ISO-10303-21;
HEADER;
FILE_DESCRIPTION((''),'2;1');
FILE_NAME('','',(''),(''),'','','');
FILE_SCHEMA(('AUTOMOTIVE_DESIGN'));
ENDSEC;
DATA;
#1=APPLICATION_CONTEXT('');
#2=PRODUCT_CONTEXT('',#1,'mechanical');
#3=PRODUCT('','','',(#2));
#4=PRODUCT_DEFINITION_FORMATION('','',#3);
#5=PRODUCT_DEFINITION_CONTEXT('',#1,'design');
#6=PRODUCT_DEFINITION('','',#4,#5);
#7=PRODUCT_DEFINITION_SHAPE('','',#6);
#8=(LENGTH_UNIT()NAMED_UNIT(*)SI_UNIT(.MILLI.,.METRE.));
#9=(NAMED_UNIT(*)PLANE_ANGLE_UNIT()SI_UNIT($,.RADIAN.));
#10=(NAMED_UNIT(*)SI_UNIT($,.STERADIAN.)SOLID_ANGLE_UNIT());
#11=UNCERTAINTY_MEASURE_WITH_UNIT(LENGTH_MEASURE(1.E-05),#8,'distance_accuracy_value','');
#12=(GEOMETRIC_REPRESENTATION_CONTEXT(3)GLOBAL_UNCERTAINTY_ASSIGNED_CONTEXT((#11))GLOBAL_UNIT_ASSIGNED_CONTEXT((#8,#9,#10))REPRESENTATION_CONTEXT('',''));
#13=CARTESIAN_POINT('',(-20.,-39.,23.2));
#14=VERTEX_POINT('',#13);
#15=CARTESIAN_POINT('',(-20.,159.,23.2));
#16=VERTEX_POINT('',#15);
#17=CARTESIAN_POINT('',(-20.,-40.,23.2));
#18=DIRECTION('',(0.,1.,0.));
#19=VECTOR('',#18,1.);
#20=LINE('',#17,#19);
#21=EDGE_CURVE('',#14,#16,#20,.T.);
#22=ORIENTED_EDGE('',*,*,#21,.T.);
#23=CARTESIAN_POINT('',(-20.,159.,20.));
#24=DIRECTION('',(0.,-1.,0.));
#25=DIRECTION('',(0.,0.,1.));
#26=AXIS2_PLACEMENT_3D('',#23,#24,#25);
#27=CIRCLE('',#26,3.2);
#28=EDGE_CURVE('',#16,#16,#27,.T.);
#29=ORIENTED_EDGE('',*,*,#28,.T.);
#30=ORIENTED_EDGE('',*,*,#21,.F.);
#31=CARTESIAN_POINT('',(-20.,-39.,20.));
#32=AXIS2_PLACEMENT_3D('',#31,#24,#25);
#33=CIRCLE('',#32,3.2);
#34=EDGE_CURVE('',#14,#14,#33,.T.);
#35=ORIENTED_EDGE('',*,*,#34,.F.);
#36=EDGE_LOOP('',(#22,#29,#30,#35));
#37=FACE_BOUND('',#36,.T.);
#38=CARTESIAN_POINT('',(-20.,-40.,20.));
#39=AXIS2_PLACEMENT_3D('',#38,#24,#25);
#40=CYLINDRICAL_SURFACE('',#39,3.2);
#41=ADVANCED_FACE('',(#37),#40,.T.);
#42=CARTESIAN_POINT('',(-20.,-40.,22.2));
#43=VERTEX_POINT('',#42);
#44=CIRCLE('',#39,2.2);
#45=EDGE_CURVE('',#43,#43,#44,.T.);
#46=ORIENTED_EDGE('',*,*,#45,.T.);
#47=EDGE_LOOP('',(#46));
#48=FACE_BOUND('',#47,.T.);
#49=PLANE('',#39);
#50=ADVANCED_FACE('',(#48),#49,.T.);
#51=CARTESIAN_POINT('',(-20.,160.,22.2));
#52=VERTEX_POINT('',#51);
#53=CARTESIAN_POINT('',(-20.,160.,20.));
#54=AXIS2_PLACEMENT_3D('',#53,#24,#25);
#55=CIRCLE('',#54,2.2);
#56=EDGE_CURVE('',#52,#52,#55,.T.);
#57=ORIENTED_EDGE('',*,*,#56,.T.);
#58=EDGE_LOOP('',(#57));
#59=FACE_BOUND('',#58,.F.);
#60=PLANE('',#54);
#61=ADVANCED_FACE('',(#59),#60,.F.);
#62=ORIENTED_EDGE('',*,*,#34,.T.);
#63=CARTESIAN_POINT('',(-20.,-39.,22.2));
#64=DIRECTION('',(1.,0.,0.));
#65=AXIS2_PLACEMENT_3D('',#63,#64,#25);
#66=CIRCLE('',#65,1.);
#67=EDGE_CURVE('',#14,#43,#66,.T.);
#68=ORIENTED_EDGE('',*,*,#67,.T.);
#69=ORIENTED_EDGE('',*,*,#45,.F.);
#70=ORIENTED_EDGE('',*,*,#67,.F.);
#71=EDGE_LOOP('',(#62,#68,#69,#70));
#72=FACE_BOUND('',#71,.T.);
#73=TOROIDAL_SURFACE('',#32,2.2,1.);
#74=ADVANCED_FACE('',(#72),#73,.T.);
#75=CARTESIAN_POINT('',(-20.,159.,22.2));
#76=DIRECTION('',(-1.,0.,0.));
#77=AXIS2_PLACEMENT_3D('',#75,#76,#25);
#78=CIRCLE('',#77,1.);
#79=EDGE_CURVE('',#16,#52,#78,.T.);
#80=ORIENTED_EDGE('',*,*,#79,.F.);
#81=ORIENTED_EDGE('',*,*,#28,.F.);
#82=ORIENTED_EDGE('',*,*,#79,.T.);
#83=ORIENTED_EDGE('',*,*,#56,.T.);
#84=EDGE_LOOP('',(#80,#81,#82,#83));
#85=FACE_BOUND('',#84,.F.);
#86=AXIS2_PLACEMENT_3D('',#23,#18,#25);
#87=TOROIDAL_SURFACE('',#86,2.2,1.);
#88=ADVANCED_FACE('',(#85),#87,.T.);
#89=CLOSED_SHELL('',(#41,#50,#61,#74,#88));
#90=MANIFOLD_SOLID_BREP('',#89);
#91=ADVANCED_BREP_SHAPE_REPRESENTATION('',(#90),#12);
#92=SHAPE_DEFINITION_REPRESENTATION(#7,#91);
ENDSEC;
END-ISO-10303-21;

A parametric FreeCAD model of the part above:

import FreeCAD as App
import Part
import Sketcher
Q = App.Units.Quantity


def edges_at(feature, points):
    """Names of the edges that pass closest to the given points."""
    edges = feature.Shape.Edges
    near = lambda p: min(range(len(edges)), key=lambda i: edges[i].distToShape(Part.Vertex(*p))[0])
    return sorted({f"Edge{near(p) + 1}" for p in points})

doc = App.newDocument("Part")
body = doc.addObject("PartDesign::Body", "Body")

# Sketch on XZ plane
sketch1 = body.newObject("Sketcher::SketchObject", "Sketch")
sketch1.AttachmentSupport = (doc.getObject("XZ_Plane"), [""])
sketch1.MapMode = "FlatFace"
sketch1.AttachmentOffset = App.Placement(App.Vector(0, 0, 40), App.Rotation())
sketch1.addGeometry(Part.Circle(App.Vector(20, 20, 0), App.Vector(0, 0, 1), 3.2), False)
sketch1.addConstraint([
    Sketcher.Constraint("Diameter", 0, Q("6.4 mm")),
    Sketcher.Constraint("DistanceX", -1, 1, 0, 3, Q("20 mm")),
    Sketcher.Constraint("DistanceY", -1, 1, 0, 3, Q("20 mm")),
])
pad1 = body.newObject("PartDesign::Pad", "Pad")
pad1.Profile = sketch1
pad1.Length = 200
pad1.Reversed = True
doc.recompute()

fillet = body.newObject("PartDesign::Fillet", "Fillet")
fillet.Base = (pad1, edges_at(pad1, [(16.8, -40, 20)]))
fillet.Radius = 1
doc.recompute()

fillet2 = body.newObject("PartDesign::Fillet", "Fillet001")
fillet2.Base = (fillet, edges_at(fillet, [(16.8, 160, 20)]))
fillet2.Radius = 1
body2 = doc.addObject("PartDesign::Body", "Body001")
doc.recompute()

body.Placement = App.Placement(App.Vector(0, 0, 0), App.Rotation(App.Vector(0, -1, 0), 90))
boolean = body2.newObject("PartDesign::Boolean", "Boolean")
boolean.Type = "Fuse"
boolean.addObjects([body])

doc.recompute()
